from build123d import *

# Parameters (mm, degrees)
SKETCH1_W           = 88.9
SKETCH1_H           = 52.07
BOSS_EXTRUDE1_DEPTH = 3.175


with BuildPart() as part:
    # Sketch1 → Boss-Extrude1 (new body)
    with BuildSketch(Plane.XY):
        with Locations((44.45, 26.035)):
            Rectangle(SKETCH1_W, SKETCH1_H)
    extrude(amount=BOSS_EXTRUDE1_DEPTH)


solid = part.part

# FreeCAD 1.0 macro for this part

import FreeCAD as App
import Part
import Sketcher

V = App.Vector
Q = App.Units.Quantity


def add_polygon(sketch, points):
    """Adds a closed chain of lines whose ends are joined by coincident constraints."""
    first, n = sketch.GeometryCount, len(points)
    for a, b in zip(points, points[1:] + points[:1]):
        sketch.addGeometry(Part.LineSegment(App.Vector(*a, 0), App.Vector(*b, 0)), False)
    for i in range(n):
        sketch.addConstraint(Sketcher.Constraint("Coincident", first + i, 2, first + (i + 1) % n, 1))

doc = App.newDocument("Part")
body = doc.addObject("PartDesign::Body", "Body")

sketch1 = doc.addObject("Sketcher::SketchObject", "Sketch")
body.addObject(sketch1)
sketch1.AttachmentSupport = (doc.XY_Plane, [""])
sketch1.MapMode = "FlatFace"
add_polygon(sketch1, [(0, 52), (0, 0), (89, 0), (89, 52)])
sketch1.addConstraint([
    Sketcher.Constraint("Vertical", 0),
    Sketcher.Constraint("Horizontal", 1),
    Sketcher.Constraint("Vertical", 2),
    Sketcher.Constraint("Horizontal", 3),
    Sketcher.Constraint("Coincident", 0, 2, -1, 1),
    Sketcher.Constraint("DistanceX", 1, 1, 1, 2, Q("3.5 in")),
    Sketcher.Constraint("DistanceY", 0, 2, 0, 1, Q("2.05 in")),
])
pad1 = doc.addObject("PartDesign::Pad", "Pad")
body.addObject(pad1)
pad1.Profile = sketch1
pad1.Length = Q("0.125 in")

doc.recompute()
